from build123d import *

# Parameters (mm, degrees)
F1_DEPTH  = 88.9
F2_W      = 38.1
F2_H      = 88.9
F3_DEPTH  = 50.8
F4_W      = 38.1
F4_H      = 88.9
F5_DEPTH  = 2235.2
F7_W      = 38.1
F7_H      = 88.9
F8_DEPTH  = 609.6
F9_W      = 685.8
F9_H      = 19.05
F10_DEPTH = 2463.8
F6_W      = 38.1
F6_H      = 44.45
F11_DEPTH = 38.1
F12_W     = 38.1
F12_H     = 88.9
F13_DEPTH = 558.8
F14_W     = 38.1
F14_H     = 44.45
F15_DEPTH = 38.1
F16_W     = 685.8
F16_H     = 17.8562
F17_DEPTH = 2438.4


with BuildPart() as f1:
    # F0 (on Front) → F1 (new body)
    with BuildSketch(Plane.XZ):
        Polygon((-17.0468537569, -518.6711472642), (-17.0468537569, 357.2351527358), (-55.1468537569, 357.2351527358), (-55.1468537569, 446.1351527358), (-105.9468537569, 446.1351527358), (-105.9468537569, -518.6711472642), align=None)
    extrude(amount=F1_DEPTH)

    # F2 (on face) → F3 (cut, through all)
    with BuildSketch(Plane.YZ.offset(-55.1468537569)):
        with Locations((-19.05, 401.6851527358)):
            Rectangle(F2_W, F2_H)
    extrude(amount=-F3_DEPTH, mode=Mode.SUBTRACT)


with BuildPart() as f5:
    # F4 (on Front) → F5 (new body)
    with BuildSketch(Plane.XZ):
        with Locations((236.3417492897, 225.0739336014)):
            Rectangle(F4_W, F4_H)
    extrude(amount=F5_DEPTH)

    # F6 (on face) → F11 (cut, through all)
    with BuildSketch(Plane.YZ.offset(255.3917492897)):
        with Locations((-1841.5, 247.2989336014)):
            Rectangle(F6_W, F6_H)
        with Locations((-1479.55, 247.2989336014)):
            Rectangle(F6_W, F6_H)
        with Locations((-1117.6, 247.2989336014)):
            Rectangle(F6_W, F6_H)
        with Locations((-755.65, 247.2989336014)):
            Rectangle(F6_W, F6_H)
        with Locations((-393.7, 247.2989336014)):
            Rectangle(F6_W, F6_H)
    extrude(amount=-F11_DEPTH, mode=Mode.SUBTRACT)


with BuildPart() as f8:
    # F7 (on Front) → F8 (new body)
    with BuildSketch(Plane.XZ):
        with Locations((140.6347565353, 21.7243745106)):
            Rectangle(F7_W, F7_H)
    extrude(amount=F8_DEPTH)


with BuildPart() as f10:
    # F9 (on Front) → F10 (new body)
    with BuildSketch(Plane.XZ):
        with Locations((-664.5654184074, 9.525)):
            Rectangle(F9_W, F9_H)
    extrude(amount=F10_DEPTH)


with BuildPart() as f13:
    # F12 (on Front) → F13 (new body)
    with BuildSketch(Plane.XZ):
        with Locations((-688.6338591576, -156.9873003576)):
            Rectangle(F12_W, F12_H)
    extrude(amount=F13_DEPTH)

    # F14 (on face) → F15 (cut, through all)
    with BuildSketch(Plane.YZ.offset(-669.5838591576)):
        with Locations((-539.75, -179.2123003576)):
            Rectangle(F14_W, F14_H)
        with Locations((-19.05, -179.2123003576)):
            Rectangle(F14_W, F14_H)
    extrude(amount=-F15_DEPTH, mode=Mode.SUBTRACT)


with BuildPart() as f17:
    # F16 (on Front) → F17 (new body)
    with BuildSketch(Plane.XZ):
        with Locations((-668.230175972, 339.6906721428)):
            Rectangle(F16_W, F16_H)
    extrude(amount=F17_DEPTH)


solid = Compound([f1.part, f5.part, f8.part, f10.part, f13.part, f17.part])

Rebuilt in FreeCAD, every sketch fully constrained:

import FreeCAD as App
import Part
import Sketcher

V = App.Vector
Q = App.Units.Quantity

doc = App.newDocument("Part")
params = doc.addObject("Spreadsheet::Sheet", "Params")
for row, (alias, value) in enumerate([
    ("sketch1_width", "2 in"),
    ("sketch1_width2", "1.5 in"),
    ("pad1_length", "3.5 in"),
    ("sketch2_width", "1.5 in"),
    ("sketch2_height", "3.5 in"),
    ("sketch3_width", "1.5 in"),
    ("sketch3_height", "3.5 in"),
    ("pad2_length", "88 in"),
    ("sketch4_width", "1.5 in"),
    ("sketch4_height", "1.75 in"),
    ("sketch5_width", "1.5 in"),
    ("sketch5_height", "3.5 in"),
    ("pad3_length", "24 in"),
    ("sketch6_width", "27 in"),
    ("sketch6_height", "0.75 in"),
    ("pad4_length", "97 in"),
    ("sketch7_width", "1.5 in"),
    ("sketch7_height", "3.5 in"),
    ("pad5_length", "22 in"),
    ("sketch8_width", "1.5 in"),
    ("sketch8_height", "1.75 in"),
    ("sketch9_width", "27 in"),
    ("sketch9_height", "0.703 in"),
    ("pad6_length", "96 in"),
], start=1):
    params.set(f"A{row}", alias)
    params.set(f"B{row}", "=" + value)
    params.setAlias(f"B{row}", alias)

body = doc.addObject("PartDesign::Body", "Body")

sketch1 = doc.addObject("Sketcher::SketchObject", "Sketch")
body.addObject(sketch1)
sketch1.AttachmentSupport = (doc.XZ_Plane, [""])
sketch1.MapMode = "FlatFace"
sketch1.addGeometry([
    Part.LineSegment(V(-17.046854, -518.671147, 0), V(-17.046854, 357.235153, 0)),
    Part.LineSegment(V(-17.046854, 357.235153, 0), V(-55.146854, 357.235153, 0)),
    Part.LineSegment(V(-55.146854, 357.235153, 0), V(-55.146854, 446.135153, 0)),
    Part.LineSegment(V(-55.146854, 446.135153, 0), V(-105.946854, 446.135153, 0)),
    Part.LineSegment(V(-105.946854, 446.135153, 0), V(-105.946854, -518.671147, 0)),
    Part.LineSegment(V(-105.946854, -518.671147, 0), V(-17.046854, -518.671147, 0)),
], False)
sketch1.addConstraint([
    Sketcher.Constraint("Coincident", 0, 2, 1, 1),
    Sketcher.Constraint("Coincident", 1, 2, 2, 1),
    Sketcher.Constraint("Coincident", 2, 2, 3, 1),
    Sketcher.Constraint("Coincident", 3, 2, 4, 1),
    Sketcher.Constraint("Coincident", 4, 2, 5, 1),
    Sketcher.Constraint("Coincident", 5, 2, 0, 1),
    Sketcher.Constraint("Vertical", 0),
    Sketcher.Constraint("Horizontal", 1),
    Sketcher.Constraint("Vertical", 2),
    Sketcher.Constraint("Horizontal", 3),
    Sketcher.Constraint("Vertical", 4),
    Sketcher.Constraint("Horizontal", 5),
    Sketcher.Constraint("Equal", 5, 2),
    Sketcher.Constraint("DistanceX", 3, 2, 3, 1, Q("2 in")),
    Sketcher.Constraint("DistanceX", 1, 2, 1, 1, Q("1.5 in")),
    Sketcher.Constraint("DistanceY", 0, 1, 0, 2, Q("34.4845 in")),
    Sketcher.Constraint("DistanceX", 0, 2, -1, 1, 17.046854),
    Sketcher.Constraint("DistanceY", -1, 1, 0, 2, 357.235153),
])
sketch1.setExpression("Constraints[13]", "Params.sketch1_width")
sketch1.setExpression("Constraints[14]", "Params.sketch1_width2")
pad1 = doc.addObject("PartDesign::Pad", "Pad")
body.addObject(pad1)
pad1.Profile = sketch1
pad1.setExpression("Length", "Params.pad1_length")

sketch2 = doc.addObject("Sketcher::SketchObject", "Sketch001")
body.addObject(sketch2)
sketch2.AttachmentSupport = (doc.YZ_Plane, [""])
sketch2.MapMode = "FlatFace"
sketch2.AttachmentOffset = App.Placement(V(0, 0, -55.146854), App.Rotation())
sketch2.addGeometry([
    Part.LineSegment(V(-38.1, 446.135153, 0), V(-38.1, 357.235153, 0)),
    Part.LineSegment(V(-38.1, 357.235153, 0), V(0, 357.235153, 0)),
    Part.LineSegment(V(0, 357.235153, 0), V(0, 446.135153, 0)),
    Part.LineSegment(V(0, 446.135153, 0), V(-38.1, 446.135153, 0)),
], False)
sketch2.addConstraint([
    Sketcher.Constraint("Coincident", 0, 2, 1, 1),
    Sketcher.Constraint("Coincident", 1, 2, 2, 1),
    Sketcher.Constraint("Coincident", 2, 2, 3, 1),
    Sketcher.Constraint("Coincident", 3, 2, 0, 1),
    Sketcher.Constraint("Vertical", 0),
    Sketcher.Constraint("Horizontal", 1),
    Sketcher.Constraint("Vertical", 2),
    Sketcher.Constraint("Horizontal", 3),
    Sketcher.Constraint("PointOnObject", 1, 2, -2),
    Sketcher.Constraint("DistanceX", 1, 1, 1, 2, Q("1.5 in")),
    Sketcher.Constraint("DistanceY", 0, 2, 0, 1, Q("3.5 in")),
    Sketcher.Constraint("DistanceY", -1, 1, 0, 2, 357.235153),
])
sketch2.setExpression("Constraints[9]", "Params.sketch2_width")
sketch2.setExpression("Constraints[10]", "Params.sketch2_height")
pocket1 = doc.addObject("PartDesign::Pocket", "Pocket")
body.addObject(pocket1)
pocket1.Profile = sketch2
pocket1.Type = "ThroughAll"
body2 = doc.addObject("PartDesign::Body", "Body001")

sketch3 = doc.addObject("Sketcher::SketchObject", "Sketch002")
body2.addObject(sketch3)
sketch3.AttachmentSupport = (doc.getObject("XZ_Plane001"), [""])
sketch3.MapMode = "FlatFace"
sketch3.addGeometry([
    Part.LineSegment(V(217.291749, 269.523934, 0), V(217.291749, 180.623934, 0)),
    Part.LineSegment(V(217.291749, 180.623934, 0), V(255.391749, 180.623934, 0)),
    Part.LineSegment(V(255.391749, 180.623934, 0), V(255.391749, 269.523934, 0)),
    Part.LineSegment(V(255.391749, 269.523934, 0), V(217.291749, 269.523934, 0)),
], False)
sketch3.addConstraint([
    Sketcher.Constraint("Coincident", 0, 2, 1, 1),
    Sketcher.Constraint("Coincident", 1, 2, 2, 1),
    Sketcher.Constraint("Coincident", 2, 2, 3, 1),
    Sketcher.Constraint("Coincident", 3, 2, 0, 1),
    Sketcher.Constraint("Vertical", 0),
    Sketcher.Constraint("Horizontal", 1),
    Sketcher.Constraint("Vertical", 2),
    Sketcher.Constraint("Horizontal", 3),
    Sketcher.Constraint("DistanceX", 1, 1, 1, 2, Q("1.5 in")),
    Sketcher.Constraint("DistanceY", 0, 2, 0, 1, Q("3.5 in")),
    Sketcher.Constraint("DistanceX", -1, 1, 0, 2, 217.291749),
    Sketcher.Constraint("DistanceY", -1, 1, 0, 2, 180.623934),
])
sketch3.setExpression("Constraints[8]", "Params.sketch3_width")
sketch3.setExpression("Constraints[9]", "Params.sketch3_height")
pad2 = doc.addObject("PartDesign::Pad", "Pad001")
body2.addObject(pad2)
pad2.Profile = sketch3
pad2.setExpression("Length", "Params.pad2_length")

sketch4 = doc.addObject("Sketcher::SketchObject", "Sketch003")
body2.addObject(sketch4)
sketch4.AttachmentSupport = (doc.getObject("YZ_Plane001"), [""])
sketch4.MapMode = "FlatFace"
sketch4.AttachmentOffset = App.Placement(V(0, 0, 255.391749), App.Rotation())
sketch4.addGeometry([
    Part.LineSegment(V(-1860.55, 269.523934, 0), V(-1860.55, 225.073934, 0)),
    Part.LineSegment(V(-1860.55, 225.073934, 0), V(-1822.45, 225.073934, 0)),
    Part.LineSegment(V(-1822.45, 225.073934, 0), V(-1822.45, 269.523934, 0)),
    Part.LineSegment(V(-1822.45, 269.523934, 0), V(-1860.55, 269.523934, 0)),
    Part.LineSegment(V(-1498.6, 269.523934, 0), V(-1498.6, 225.073934, 0)),
    Part.LineSegment(V(-1498.6, 225.073934, 0), V(-1460.5, 225.073934, 0)),
    Part.LineSegment(V(-1460.5, 225.073934, 0), V(-1460.5, 269.523934, 0)),
    Part.LineSegment(V(-1460.5, 269.523934, 0), V(-1498.6, 269.523934, 0)),
    Part.LineSegment(V(-1136.65, 269.523934, 0), V(-1136.65, 225.073934, 0)),
    Part.LineSegment(V(-1136.65, 225.073934, 0), V(-1098.55, 225.073934, 0)),
    Part.LineSegment(V(-1098.55, 225.073934, 0), V(-1098.55, 269.523934, 0)),
    Part.LineSegment(V(-1098.55, 269.523934, 0), V(-1136.65, 269.523934, 0)),
    Part.LineSegment(V(-774.7, 269.523934, 0), V(-774.7, 225.073934, 0)),
    Part.LineSegment(V(-774.7, 225.073934, 0), V(-736.6, 225.073934, 0)),
    Part.LineSegment(V(-736.6, 225.073934, 0), V(-736.6, 269.523934, 0)),
    Part.LineSegment(V(-736.6, 269.523934, 0), V(-774.7, 269.523934, 0)),
    Part.LineSegment(V(-412.75, 269.523934, 0), V(-412.75, 225.073934, 0)),
    Part.LineSegment(V(-412.75, 225.073934, 0), V(-374.65, 225.073934, 0)),
    Part.LineSegment(V(-374.65, 225.073934, 0), V(-374.65, 269.523934, 0)),
    Part.LineSegment(V(-374.65, 269.523934, 0), V(-412.75, 269.523934, 0)),
], False)
sketch4.addConstraint([
    Sketcher.Constraint("Coincident", 0, 2, 1, 1),
    Sketcher.Constraint("Coincident", 1, 2, 2, 1),
    Sketcher.Constraint("Coincident", 2, 2, 3, 1),
    Sketcher.Constraint("Coincident", 3, 2, 0, 1),
    Sketcher.Constraint("Coincident", 4, 2, 5, 1),
    Sketcher.Constraint("Coincident", 5, 2, 6, 1),
    Sketcher.Constraint("Coincident", 6, 2, 7, 1),
    Sketcher.Constraint("Coincident", 7, 2, 4, 1),
    Sketcher.Constraint("Coincident", 8, 2, 9, 1),
    Sketcher.Constraint("Coincident", 9, 2, 10, 1),
    Sketcher.Constraint("Coincident", 10, 2, 11, 1),
    Sketcher.Constraint("Coincident", 11, 2, 8, 1),
    Sketcher.Constraint("Coincident", 12, 2, 13, 1),
    Sketcher.Constraint("Coincident", 13, 2, 14, 1),
    Sketcher.Constraint("Coincident", 14, 2, 15, 1),
    Sketcher.Constraint("Coincident", 15, 2, 12, 1),
    Sketcher.Constraint("Coincident", 16, 2, 17, 1),
    Sketcher.Constraint("Coincident", 17, 2, 18, 1),
    Sketcher.Constraint("Coincident", 18, 2, 19, 1),
    Sketcher.Constraint("Coincident", 19, 2, 16, 1),
    Sketcher.Constraint("Vertical", 0),
    Sketcher.Constraint("Horizontal", 1),
    Sketcher.Constraint("Vertical", 2),
    Sketcher.Constraint("Horizontal", 3),
    Sketcher.Constraint("Vertical", 4),
    Sketcher.Constraint("Horizontal", 5),
    Sketcher.Constraint("Vertical", 6),
    Sketcher.Constraint("Horizontal", 7),
    Sketcher.Constraint("Vertical", 8),
    Sketcher.Constraint("Horizontal", 9),
    Sketcher.Constraint("Vertical", 10),
    Sketcher.Constraint("Horizontal", 11),
    Sketcher.Constraint("Vertical", 12),
    Sketcher.Constraint("Horizontal", 13),
    Sketcher.Constraint("Vertical", 14),
    Sketcher.Constraint("Horizontal", 15),
    Sketcher.Constraint("Vertical", 16),
    Sketcher.Constraint("Horizontal", 17),
    Sketcher.Constraint("Vertical", 18),
    Sketcher.Constraint("Horizontal", 19),
    Sketcher.Constraint("Horizontal", 1, 2, 4, 2),
    Sketcher.Constraint("Horizontal", 3, 2, 6, 2),
    Sketcher.Constraint("Horizontal", 5, 2, 8, 2),
    Sketcher.Constraint("Horizontal", 7, 2, 10, 2),
    Sketcher.Constraint("Horizontal", 9, 2, 12, 2),
    Sketcher.Constraint("Horizontal", 11, 2, 14, 2),
    Sketcher.Constraint("Horizontal", 13, 2, 16, 2),
    Sketcher.Constraint("Horizontal", 15, 2, 18, 2),
    Sketcher.Constraint("Equal", 3, 5),
    Sketcher.Constraint("Equal", 7, 9),
    Sketcher.Constraint("Equal", 11, 13),
    Sketcher.Constraint("Equal", 15, 17),
    Sketcher.Constraint("DistanceX", 1, 1, 1, 2, Q("1.5 in")),
    Sketcher.Constraint("DistanceX", 4, 2, -1, 1, Q("59 in")),
    Sketcher.Constraint("DistanceX", 13, 2, -1, 1, Q("29 in")),
    Sketcher.Constraint("DistanceX", 1, 2, 8, 2, Q("27 in")),
    Sketcher.Constraint("DistanceX", 9, 2, 16, 2, Q("27 in")),
    Sketcher.Constraint("DistanceY", 0, 2, 0, 1, Q("1.75 in")),
    Sketcher.Constraint("DistanceX", 0, 2, -1, 1, Q("73.25 in")),
    Sketcher.Constraint("DistanceY", -1, 1, 0, 2, 225.073934),
])
sketch4.setExpression("Constraints[52]", "Params.sketch4_width")
sketch4.setExpression("Constraints[57]", "Params.sketch4_height")
pocket2 = doc.addObject("PartDesign::Pocket", "Pocket001")
body2.addObject(pocket2)
pocket2.Profile = sketch4
pocket2.Type = "ThroughAll"
body3 = doc.addObject("PartDesign::Body", "Body002")

sketch5 = doc.addObject("Sketcher::SketchObject", "Sketch004")
body3.addObject(sketch5)
sketch5.AttachmentSupport = (doc.getObject("XZ_Plane002"), [""])
sketch5.MapMode = "FlatFace"
sketch5.addGeometry([
    Part.LineSegment(V(121.584757, 66.174375, 0), V(121.584757, -22.725625, 0)),
    Part.LineSegment(V(121.584757, -22.725625, 0), V(159.684757, -22.725625, 0)),
    Part.LineSegment(V(159.684757, -22.725625, 0), V(159.684757, 66.174375, 0)),
    Part.LineSegment(V(159.684757, 66.174375, 0), V(121.584757, 66.174375, 0)),
], False)
sketch5.addConstraint([
    Sketcher.Constraint("Coincident", 0, 2, 1, 1),
    Sketcher.Constraint("Coincident", 1, 2, 2, 1),
    Sketcher.Constraint("Coincident", 2, 2, 3, 1),
    Sketcher.Constraint("Coincident", 3, 2, 0, 1),
    Sketcher.Constraint("Vertical", 0),
    Sketcher.Constraint("Horizontal", 1),
    Sketcher.Constraint("Vertical", 2),
    Sketcher.Constraint("Horizontal", 3),
    Sketcher.Constraint("DistanceX", 1, 1, 1, 2, Q("1.5 in")),
    Sketcher.Constraint("DistanceY", 0, 2, 0, 1, Q("3.5 in")),
    Sketcher.Constraint("DistanceX", -1, 1, 0, 2, 121.584757),
    Sketcher.Constraint("DistanceY", 0, 2, -1, 1, 22.725625),
])
sketch5.setExpression("Constraints[8]", "Params.sketch5_width")
sketch5.setExpression("Constraints[9]", "Params.sketch5_height")
pad3 = doc.addObject("PartDesign::Pad", "Pad002")
body3.addObject(pad3)
pad3.Profile = sketch5
pad3.setExpression("Length", "Params.pad3_length")
body4 = doc.addObject("PartDesign::Body", "Body003")

sketch6 = doc.addObject("Sketcher::SketchObject", "Sketch005")
body4.addObject(sketch6)
sketch6.AttachmentSupport = (doc.getObject("XZ_Plane003"), [""])
sketch6.MapMode = "FlatFace"
sketch6.addGeometry([
    Part.LineSegment(V(-1007.465418, 19.05, 0), V(-1007.465418, 0, 0)),
    Part.LineSegment(V(-1007.465418, 0, 0), V(-321.665418, 0, 0)),
    Part.LineSegment(V(-321.665418, 0, 0), V(-321.665418, 19.05, 0)),
    Part.LineSegment(V(-321.665418, 19.05, 0), V(-1007.465418, 19.05, 0)),
], False)
sketch6.addConstraint([
    Sketcher.Constraint("Coincident", 0, 2, 1, 1),
    Sketcher.Constraint("Coincident", 1, 2, 2, 1),
    Sketcher.Constraint("Coincident", 2, 2, 3, 1),
    Sketcher.Constraint("Coincident", 3, 2, 0, 1),
    Sketcher.Constraint("Vertical", 0),
    Sketcher.Constraint("Horizontal", 1),
    Sketcher.Constraint("Vertical", 2),
    Sketcher.Constraint("Horizontal", 3),
    Sketcher.Constraint("PointOnObject", 0, 2, -1),
    Sketcher.Constraint("DistanceX", 1, 1, 1, 2, Q("27 in")),
    Sketcher.Constraint("DistanceY", 0, 2, 0, 1, Q("0.75 in")),
    Sketcher.Constraint("DistanceX", 0, 2, -1, 1, 1007.465418),
])
sketch6.setExpression("Constraints[9]", "Params.sketch6_width")
sketch6.setExpression("Constraints[10]", "Params.sketch6_height")
pad4 = doc.addObject("PartDesign::Pad", "Pad003")
body4.addObject(pad4)
pad4.Profile = sketch6
pad4.setExpression("Length", "Params.pad4_length")
body5 = doc.addObject("PartDesign::Body", "Body004")

sketch7 = doc.addObject("Sketcher::SketchObject", "Sketch006")
body5.addObject(sketch7)
sketch7.AttachmentSupport = (doc.getObject("XZ_Plane004"), [""])
sketch7.MapMode = "FlatFace"
sketch7.addGeometry([
    Part.LineSegment(V(-707.683859, -112.5373, 0), V(-707.683859, -201.4373, 0)),
    Part.LineSegment(V(-707.683859, -201.4373, 0), V(-669.583859, -201.4373, 0)),
    Part.LineSegment(V(-669.583859, -201.4373, 0), V(-669.583859, -112.5373, 0)),
    Part.LineSegment(V(-669.583859, -112.5373, 0), V(-707.683859, -112.5373, 0)),
], False)
sketch7.addConstraint([
    Sketcher.Constraint("Coincident", 0, 2, 1, 1),
    Sketcher.Constraint("Coincident", 1, 2, 2, 1),
    Sketcher.Constraint("Coincident", 2, 2, 3, 1),
    Sketcher.Constraint("Coincident", 3, 2, 0, 1),
    Sketcher.Constraint("Vertical", 0),
    Sketcher.Constraint("Horizontal", 1),
    Sketcher.Constraint("Vertical", 2),
    Sketcher.Constraint("Horizontal", 3),
    Sketcher.Constraint("DistanceX", 1, 1, 1, 2, Q("1.5 in")),
    Sketcher.Constraint("DistanceY", 0, 2, 0, 1, Q("3.5 in")),
    Sketcher.Constraint("DistanceY", 0, 2, -1, 1, 201.4373),
    Sketcher.Constraint("DistanceX", 0, 2, -1, 1, 707.683859),
])
sketch7.setExpression("Constraints[8]", "Params.sketch7_width")
sketch7.setExpression("Constraints[9]", "Params.sketch7_height")
pad5 = doc.addObject("PartDesign::Pad", "Pad004")
body5.addObject(pad5)
pad5.Profile = sketch7
pad5.setExpression("Length", "Params.pad5_length")

sketch8 = doc.addObject("Sketcher::SketchObject", "Sketch007")
body5.addObject(sketch8)
sketch8.AttachmentSupport = (doc.getObject("YZ_Plane004"), [""])
sketch8.MapMode = "FlatFace"
sketch8.AttachmentOffset = App.Placement(V(0, 0, -669.583859), App.Rotation())
sketch8.addGeometry([
    Part.LineSegment(V(-558.8, -156.9873, 0), V(-558.8, -201.4373, 0)),
    Part.LineSegment(V(-558.8, -201.4373, 0), V(-520.7, -201.4373, 0)),
    Part.LineSegment(V(-520.7, -201.4373, 0), V(-520.7, -156.9873, 0)),
    Part.LineSegment(V(-520.7, -156.9873, 0), V(-558.8, -156.9873, 0)),
    Part.LineSegment(V(-38.1, -156.9873, 0), V(-38.1, -201.4373, 0)),
    Part.LineSegment(V(-38.1, -201.4373, 0), V(0, -201.4373, 0)),
    Part.LineSegment(V(0, -201.4373, 0), V(0, -156.9873, 0)),
    Part.LineSegment(V(0, -156.9873, 0), V(-38.1, -156.9873, 0)),
], False)
sketch8.addConstraint([
    Sketcher.Constraint("Coincident", 0, 2, 1, 1),
    Sketcher.Constraint("Coincident", 1, 2, 2, 1),
    Sketcher.Constraint("Coincident", 2, 2, 3, 1),
    Sketcher.Constraint("Coincident", 3, 2, 0, 1),
    Sketcher.Constraint("Coincident", 4, 2, 5, 1),
    Sketcher.Constraint("Coincident", 5, 2, 6, 1),
    Sketcher.Constraint("Coincident", 6, 2, 7, 1),
    Sketcher.Constraint("Coincident", 7, 2, 4, 1),
    Sketcher.Constraint("Vertical", 0),
    Sketcher.Constraint("Horizontal", 1),
    Sketcher.Constraint("Vertical", 2),
    Sketcher.Constraint("Horizontal", 3),
    Sketcher.Constraint("Vertical", 4),
    Sketcher.Constraint("Horizontal", 5),
    Sketcher.Constraint("Vertical", 6),
    Sketcher.Constraint("Horizontal", 7),
    Sketcher.Constraint("PointOnObject", 5, 2, -2),
    Sketcher.Constraint("Horizontal", 1, 2, 4, 2),
    Sketcher.Constraint("Horizontal", 3, 2, 6, 2),
    Sketcher.Constraint("Equal", 3, 5),
    Sketcher.Constraint("DistanceX", 1, 1, 1, 2, Q("1.5 in")),
    Sketcher.Constraint("DistanceX", 0, 2, -1, 1, Q("22 in")),
    Sketcher.Constraint("DistanceY", 0, 2, 0, 1, Q("1.75 in")),
    Sketcher.Constraint("DistanceY", 0, 2, -1, 1, 201.4373),
])
sketch8.setExpression("Constraints[20]", "Params.sketch8_width")
sketch8.setExpression("Constraints[22]", "Params.sketch8_height")
pocket3 = doc.addObject("PartDesign::Pocket", "Pocket002")
body5.addObject(pocket3)
pocket3.Profile = sketch8
pocket3.Type = "ThroughAll"
body6 = doc.addObject("PartDesign::Body", "Body005")

sketch9 = doc.addObject("Sketcher::SketchObject", "Sketch008")
body6.addObject(sketch9)
sketch9.AttachmentSupport = (doc.getObject("XZ_Plane005"), [""])
sketch9.MapMode = "FlatFace"
sketch9.addGeometry([
    Part.LineSegment(V(-1011.130176, 348.618772, 0), V(-1011.130176, 330.762572, 0)),
    Part.LineSegment(V(-1011.130176, 330.762572, 0), V(-325.330176, 330.762572, 0)),
    Part.LineSegment(V(-325.330176, 330.762572, 0), V(-325.330176, 348.618772, 0)),
    Part.LineSegment(V(-325.330176, 348.618772, 0), V(-1011.130176, 348.618772, 0)),
], False)
sketch9.addConstraint([
    Sketcher.Constraint("Coincident", 0, 2, 1, 1),
    Sketcher.Constraint("Coincident", 1, 2, 2, 1),
    Sketcher.Constraint("Coincident", 2, 2, 3, 1),
    Sketcher.Constraint("Coincident", 3, 2, 0, 1),
    Sketcher.Constraint("Vertical", 0),
    Sketcher.Constraint("Horizontal", 1),
    Sketcher.Constraint("Vertical", 2),
    Sketcher.Constraint("Horizontal", 3),
    Sketcher.Constraint("DistanceX", 1, 1, 1, 2, Q("27 in")),
    Sketcher.Constraint("DistanceY", 0, 2, 0, 1, Q("0.703 in")),
    Sketcher.Constraint("DistanceX", 0, 2, -1, 1, 1011.130176),
    Sketcher.Constraint("DistanceY", -1, 1, 0, 2, 330.762572),
])
sketch9.setExpression("Constraints[8]", "Params.sketch9_width")
sketch9.setExpression("Constraints[9]", "Params.sketch9_height")
pad6 = doc.addObject("PartDesign::Pad", "Pad005")
body6.addObject(pad6)
pad6.Profile = sketch9
pad6.setExpression("Length", "Params.pad6_length")

doc.recompute()
